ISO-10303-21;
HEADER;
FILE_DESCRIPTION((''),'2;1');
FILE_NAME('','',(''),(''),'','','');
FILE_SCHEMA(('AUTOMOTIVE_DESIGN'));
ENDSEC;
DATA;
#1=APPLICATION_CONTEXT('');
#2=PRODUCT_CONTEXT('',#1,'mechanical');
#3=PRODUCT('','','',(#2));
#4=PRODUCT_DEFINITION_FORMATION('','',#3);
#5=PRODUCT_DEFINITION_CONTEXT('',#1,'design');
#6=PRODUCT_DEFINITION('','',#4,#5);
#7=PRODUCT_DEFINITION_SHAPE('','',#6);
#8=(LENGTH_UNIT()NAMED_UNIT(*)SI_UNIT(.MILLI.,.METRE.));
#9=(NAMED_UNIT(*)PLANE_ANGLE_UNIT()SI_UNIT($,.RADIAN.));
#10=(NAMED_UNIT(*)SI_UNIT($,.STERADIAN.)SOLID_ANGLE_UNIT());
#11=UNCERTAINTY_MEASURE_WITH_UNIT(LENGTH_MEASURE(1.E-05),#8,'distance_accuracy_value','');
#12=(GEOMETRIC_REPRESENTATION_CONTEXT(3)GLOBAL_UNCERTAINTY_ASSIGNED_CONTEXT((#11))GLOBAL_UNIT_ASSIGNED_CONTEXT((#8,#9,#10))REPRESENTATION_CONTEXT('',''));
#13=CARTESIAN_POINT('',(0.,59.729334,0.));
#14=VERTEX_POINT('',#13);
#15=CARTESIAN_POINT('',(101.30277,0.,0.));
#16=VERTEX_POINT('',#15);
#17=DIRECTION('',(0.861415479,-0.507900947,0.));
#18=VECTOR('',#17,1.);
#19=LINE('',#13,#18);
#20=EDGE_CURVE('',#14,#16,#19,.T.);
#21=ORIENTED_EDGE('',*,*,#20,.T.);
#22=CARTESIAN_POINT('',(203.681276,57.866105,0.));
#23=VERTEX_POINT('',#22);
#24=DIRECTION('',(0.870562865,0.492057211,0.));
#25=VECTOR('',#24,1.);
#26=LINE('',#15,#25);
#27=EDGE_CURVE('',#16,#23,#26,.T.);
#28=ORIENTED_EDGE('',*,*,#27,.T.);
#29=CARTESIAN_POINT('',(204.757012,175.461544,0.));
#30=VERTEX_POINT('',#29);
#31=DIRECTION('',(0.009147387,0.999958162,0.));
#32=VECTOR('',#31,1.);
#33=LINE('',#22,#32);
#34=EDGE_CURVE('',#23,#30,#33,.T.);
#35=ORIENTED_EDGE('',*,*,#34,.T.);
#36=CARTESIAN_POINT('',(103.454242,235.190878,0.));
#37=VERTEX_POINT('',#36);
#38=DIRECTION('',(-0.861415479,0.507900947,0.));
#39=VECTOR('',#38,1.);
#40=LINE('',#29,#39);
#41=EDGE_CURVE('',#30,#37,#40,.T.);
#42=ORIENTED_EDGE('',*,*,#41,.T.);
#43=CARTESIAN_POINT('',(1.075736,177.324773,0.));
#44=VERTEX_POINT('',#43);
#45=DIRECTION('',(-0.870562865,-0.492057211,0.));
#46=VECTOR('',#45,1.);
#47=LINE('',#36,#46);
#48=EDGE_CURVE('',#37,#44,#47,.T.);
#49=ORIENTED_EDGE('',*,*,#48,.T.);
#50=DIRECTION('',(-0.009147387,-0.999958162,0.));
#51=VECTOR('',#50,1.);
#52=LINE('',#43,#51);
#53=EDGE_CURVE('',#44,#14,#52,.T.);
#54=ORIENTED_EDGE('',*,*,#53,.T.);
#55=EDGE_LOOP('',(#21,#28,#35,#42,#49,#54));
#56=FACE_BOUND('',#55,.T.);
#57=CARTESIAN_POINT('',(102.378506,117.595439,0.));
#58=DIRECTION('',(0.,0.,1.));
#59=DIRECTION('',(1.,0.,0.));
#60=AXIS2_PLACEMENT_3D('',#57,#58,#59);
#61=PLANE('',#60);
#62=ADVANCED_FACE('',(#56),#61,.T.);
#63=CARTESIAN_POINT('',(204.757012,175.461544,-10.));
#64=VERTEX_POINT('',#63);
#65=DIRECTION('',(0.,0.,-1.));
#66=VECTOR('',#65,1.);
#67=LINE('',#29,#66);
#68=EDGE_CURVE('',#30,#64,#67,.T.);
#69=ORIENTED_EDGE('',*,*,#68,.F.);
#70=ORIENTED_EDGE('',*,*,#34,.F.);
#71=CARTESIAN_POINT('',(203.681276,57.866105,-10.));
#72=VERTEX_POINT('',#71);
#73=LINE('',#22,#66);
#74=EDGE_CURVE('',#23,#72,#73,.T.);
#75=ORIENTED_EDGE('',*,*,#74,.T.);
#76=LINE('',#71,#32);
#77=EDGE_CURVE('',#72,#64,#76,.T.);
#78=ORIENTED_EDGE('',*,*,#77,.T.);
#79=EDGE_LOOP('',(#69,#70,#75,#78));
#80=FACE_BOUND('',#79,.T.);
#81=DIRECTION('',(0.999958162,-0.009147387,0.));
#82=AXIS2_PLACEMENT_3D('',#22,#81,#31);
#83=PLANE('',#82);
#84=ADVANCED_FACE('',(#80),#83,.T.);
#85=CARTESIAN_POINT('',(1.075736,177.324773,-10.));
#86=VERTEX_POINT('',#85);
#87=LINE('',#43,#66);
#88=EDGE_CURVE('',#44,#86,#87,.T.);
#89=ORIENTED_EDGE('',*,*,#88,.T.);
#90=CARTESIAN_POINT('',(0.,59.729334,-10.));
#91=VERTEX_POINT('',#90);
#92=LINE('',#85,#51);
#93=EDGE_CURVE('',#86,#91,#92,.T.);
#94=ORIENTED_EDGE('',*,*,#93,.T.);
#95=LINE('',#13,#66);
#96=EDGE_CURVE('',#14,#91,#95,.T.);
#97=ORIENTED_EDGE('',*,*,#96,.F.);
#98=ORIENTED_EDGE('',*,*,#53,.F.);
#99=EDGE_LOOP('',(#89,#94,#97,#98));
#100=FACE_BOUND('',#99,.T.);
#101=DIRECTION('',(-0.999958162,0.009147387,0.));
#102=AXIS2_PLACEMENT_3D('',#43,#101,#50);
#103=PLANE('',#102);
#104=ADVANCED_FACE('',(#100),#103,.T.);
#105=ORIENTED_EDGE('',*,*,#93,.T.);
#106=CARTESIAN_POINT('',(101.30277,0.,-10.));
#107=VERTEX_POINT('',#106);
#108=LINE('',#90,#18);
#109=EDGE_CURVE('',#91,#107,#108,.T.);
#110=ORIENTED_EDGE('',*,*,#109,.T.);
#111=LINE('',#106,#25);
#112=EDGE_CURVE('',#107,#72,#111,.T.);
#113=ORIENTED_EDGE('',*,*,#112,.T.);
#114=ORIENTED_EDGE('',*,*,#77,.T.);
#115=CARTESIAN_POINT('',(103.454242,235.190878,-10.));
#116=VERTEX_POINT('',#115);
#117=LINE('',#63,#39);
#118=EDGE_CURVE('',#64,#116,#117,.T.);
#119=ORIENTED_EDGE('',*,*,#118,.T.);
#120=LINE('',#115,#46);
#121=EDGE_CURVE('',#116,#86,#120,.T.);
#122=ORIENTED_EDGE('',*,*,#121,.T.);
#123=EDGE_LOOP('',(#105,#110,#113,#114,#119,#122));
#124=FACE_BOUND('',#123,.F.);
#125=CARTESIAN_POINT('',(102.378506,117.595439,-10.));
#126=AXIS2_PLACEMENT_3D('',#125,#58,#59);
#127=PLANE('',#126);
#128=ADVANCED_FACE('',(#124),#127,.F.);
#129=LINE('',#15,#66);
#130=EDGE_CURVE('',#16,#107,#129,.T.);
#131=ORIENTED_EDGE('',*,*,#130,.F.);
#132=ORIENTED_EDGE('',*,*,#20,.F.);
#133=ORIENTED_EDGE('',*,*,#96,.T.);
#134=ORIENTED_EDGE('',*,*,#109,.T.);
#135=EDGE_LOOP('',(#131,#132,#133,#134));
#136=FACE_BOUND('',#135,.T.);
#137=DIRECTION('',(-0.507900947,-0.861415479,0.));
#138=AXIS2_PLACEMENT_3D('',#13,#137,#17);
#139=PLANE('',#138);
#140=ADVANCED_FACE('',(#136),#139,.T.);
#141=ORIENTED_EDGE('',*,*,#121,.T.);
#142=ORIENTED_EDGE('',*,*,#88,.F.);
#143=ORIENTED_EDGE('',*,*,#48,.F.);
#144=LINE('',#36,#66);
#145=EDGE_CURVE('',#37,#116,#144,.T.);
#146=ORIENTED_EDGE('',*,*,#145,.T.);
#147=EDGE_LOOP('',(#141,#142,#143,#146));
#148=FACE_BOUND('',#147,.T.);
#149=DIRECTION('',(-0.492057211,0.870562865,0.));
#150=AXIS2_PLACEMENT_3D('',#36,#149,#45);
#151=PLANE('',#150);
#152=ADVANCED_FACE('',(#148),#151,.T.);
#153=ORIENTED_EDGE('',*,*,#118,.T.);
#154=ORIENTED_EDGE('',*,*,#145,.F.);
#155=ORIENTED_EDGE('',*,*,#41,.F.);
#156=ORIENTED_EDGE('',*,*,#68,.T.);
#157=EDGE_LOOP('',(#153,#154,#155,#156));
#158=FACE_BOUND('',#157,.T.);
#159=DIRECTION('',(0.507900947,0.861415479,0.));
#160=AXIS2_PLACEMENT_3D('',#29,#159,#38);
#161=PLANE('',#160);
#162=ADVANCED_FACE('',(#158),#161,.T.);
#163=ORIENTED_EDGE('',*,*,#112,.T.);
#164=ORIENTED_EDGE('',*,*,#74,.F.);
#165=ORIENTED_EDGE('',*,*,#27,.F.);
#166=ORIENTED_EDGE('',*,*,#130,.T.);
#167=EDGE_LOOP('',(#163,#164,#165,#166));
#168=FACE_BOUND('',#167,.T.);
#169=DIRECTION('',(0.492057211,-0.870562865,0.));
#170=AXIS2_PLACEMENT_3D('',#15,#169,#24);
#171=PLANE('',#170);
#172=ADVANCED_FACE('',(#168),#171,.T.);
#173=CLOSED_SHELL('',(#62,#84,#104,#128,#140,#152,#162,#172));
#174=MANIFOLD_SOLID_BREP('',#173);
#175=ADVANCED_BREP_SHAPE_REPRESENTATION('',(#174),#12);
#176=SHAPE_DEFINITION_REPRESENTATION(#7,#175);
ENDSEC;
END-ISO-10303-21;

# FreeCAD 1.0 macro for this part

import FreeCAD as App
import Part
import Sketcher

V = App.Vector

doc = App.newDocument("Part")
body = doc.addObject("PartDesign::Body", "Body")

sketch1 = body.newObject("Sketcher::SketchObject", "Sketch")
sketch1.AttachmentSupport = (doc.getObject("XY_Plane"), [""])
sketch1.MapMode = "FlatFace"
sketch1.addGeometry([
    Part.LineSegment(V(41, 8, 0), V(-61, 68, 0)),
    Part.LineSegment(V(-61, 68, 0), V(-163, 10, 0)),
    Part.LineSegment(V(-163, 10, 0), V(-164, -108, 0)),
    Part.LineSegment(V(-164, -108, 0), V(-63, -168, 0)),
    Part.LineSegment(V(-63, -168, 0), V(40, -110, 0)),
    Part.LineSegment(V(40, -110, 0), V(41, 8, 0)),
], False)
sketch1.addConstraint([
    Sketcher.Constraint("Coincident", 0, 2, 1, 1),
    Sketcher.Constraint("Coincident", 1, 2, 2, 1),
    Sketcher.Constraint("Coincident", 2, 2, 3, 1),
    Sketcher.Constraint("Coincident", 3, 2, 4, 1),
    Sketcher.Constraint("Coincident", 4, 2, 5, 1),
    Sketcher.Constraint("Coincident", 5, 2, 0, 1),
    Sketcher.Constraint("Parallel", 0, 3),
    Sketcher.Constraint("Parallel", 1, 4),
    Sketcher.Constraint("Parallel", 2, 5),
    Sketcher.Constraint("Equal", 0, 1),
    Sketcher.Constraint("Equal", 1, 2),
    Sketcher.Constraint("Equal", 2, 3),
    Sketcher.Constraint("DistanceX", 3, 2, -1, 1, 62.806201),
    Sketcher.Constraint("Distance", 0, 117.600359),
    Sketcher.Constraint("DistanceX", 0, 2, -1, 1, 60.654729),
    Sketcher.Constraint("DistanceY", -1, 1, 1, 2, 9.82395),
    Sketcher.Constraint("DistanceX", 2, 2, -1, 1, 164.108971),
    Sketcher.Constraint("DistanceY", 4, 2, -1, 1, 109.634718),
])
pad1 = body.newObject("PartDesign::Pad", "Pad")
pad1.Profile = sketch1
pad1.Length = 10
pad1.Reversed = True
body2 = doc.addObject("PartDesign::Body", "Body001")
doc.recompute()

body.Placement = App.Placement(V(164.108971, 167.500823, 0), App.Rotation(V(0, 0, 1), 0))
boolean = body2.newObject("PartDesign::Boolean", "Boolean")
boolean.Type = "Fuse"
boolean.addObjects([body])

doc.recompute()
